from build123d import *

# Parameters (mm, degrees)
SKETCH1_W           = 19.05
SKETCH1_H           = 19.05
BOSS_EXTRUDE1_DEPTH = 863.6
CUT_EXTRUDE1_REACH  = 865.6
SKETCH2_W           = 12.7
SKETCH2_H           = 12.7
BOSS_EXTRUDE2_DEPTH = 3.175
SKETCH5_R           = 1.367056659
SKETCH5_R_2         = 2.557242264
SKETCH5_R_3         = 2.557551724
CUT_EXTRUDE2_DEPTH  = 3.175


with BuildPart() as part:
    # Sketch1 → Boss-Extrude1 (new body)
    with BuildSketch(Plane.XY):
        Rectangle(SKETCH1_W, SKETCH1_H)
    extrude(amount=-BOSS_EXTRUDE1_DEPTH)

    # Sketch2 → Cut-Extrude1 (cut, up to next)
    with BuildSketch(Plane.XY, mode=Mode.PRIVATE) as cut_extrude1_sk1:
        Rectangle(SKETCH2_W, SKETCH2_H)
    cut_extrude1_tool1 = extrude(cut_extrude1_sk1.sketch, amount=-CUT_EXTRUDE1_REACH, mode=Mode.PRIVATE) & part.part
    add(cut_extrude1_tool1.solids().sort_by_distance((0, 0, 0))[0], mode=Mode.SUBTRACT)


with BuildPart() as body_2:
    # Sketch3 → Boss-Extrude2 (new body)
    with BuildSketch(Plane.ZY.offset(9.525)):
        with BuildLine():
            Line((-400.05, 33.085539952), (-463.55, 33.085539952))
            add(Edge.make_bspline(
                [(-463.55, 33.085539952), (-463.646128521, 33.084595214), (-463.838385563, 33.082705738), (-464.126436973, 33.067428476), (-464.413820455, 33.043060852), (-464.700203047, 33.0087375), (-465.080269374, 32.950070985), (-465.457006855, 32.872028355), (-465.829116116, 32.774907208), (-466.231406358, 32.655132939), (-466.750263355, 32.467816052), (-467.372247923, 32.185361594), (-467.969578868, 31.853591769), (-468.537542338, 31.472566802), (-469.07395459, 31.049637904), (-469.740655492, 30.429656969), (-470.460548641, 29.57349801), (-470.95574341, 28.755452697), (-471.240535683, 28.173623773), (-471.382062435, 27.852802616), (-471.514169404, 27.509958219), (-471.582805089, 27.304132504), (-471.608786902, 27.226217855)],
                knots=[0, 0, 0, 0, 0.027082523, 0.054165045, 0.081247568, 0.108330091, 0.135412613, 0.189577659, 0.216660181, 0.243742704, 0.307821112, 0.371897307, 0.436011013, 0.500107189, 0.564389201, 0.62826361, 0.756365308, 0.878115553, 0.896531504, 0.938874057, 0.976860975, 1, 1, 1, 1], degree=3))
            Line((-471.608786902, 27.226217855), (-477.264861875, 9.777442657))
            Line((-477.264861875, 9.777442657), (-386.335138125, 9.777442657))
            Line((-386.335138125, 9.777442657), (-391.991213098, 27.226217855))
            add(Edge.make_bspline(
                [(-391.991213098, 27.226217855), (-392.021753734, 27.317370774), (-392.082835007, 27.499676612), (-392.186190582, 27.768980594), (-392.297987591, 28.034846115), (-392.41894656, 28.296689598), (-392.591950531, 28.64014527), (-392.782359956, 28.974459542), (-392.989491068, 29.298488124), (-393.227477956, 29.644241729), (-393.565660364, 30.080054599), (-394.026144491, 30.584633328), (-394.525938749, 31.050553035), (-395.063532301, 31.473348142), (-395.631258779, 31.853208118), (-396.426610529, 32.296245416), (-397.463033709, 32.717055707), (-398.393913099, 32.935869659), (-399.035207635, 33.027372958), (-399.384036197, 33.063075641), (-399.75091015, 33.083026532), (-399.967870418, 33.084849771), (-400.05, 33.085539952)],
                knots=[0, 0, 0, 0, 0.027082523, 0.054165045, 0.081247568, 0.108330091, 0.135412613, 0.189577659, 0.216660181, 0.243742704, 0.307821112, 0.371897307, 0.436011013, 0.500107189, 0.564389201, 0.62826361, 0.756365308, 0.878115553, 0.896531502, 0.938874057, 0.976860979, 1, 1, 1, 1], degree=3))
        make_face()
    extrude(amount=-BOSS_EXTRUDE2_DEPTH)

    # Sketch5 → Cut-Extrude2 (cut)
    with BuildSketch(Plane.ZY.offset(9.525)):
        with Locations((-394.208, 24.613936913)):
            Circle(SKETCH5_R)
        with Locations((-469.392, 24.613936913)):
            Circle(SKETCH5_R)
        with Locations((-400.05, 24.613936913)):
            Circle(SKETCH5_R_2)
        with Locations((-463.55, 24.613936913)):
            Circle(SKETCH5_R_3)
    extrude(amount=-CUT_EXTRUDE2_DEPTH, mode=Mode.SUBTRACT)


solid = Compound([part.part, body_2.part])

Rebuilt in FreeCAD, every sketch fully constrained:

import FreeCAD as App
import Part
import Sketcher
from FreeCAD import Vector
Q = App.Units.Quantity


def add_polygon(sketch, points):
    """Adds a closed chain of lines whose ends are joined by coincident constraints."""
    first, n = sketch.GeometryCount, len(points)
    for a, b in zip(points, points[1:] + points[:1]):
        sketch.addGeometry(Part.LineSegment(App.Vector(*a, 0), App.Vector(*b, 0)), False)
    for i in range(n):
        sketch.addConstraint(Sketcher.Constraint("Coincident", first + i, 2, first + (i + 1) % n, 1))

doc = App.newDocument("Part")
body = doc.addObject("PartDesign::Body", "Body")

# Sketch on XY plane
sketch1 = body.newObject("Sketcher::SketchObject", "Sketch")
sketch1.AttachmentSupport = (doc.getObject("XY_Plane"), [""])
sketch1.MapMode = "FlatFace"
add_polygon(sketch1, [(-10, 10), (-10, -10), (10, -10), (10, 10)])  # lines 0-3
sketch1.addConstraint(Sketcher.Constraint("Vertical", 0))
sketch1.addConstraint(Sketcher.Constraint("Horizontal", 1))
sketch1.addConstraint(Sketcher.Constraint("Vertical", 2))
sketch1.addConstraint(Sketcher.Constraint("Horizontal", 3))
sketch1.addConstraint(Sketcher.Constraint("Symmetric", 0, 2, 2, 2, -1, 1))
sketch1.addConstraint(Sketcher.Constraint("Equal", 3, 0))
sketch1.addConstraint(Sketcher.Constraint("DistanceX", 1, 1, 1, 2, Q("0.75 in")))
pad1 = body.newObject("PartDesign::Pad", "Pad")
pad1.Profile = sketch1
pad1.Length = Q("34 in")
pad1.Reversed = True

# Sketch on XY plane
sketch2 = body.newObject("Sketcher::SketchObject", "Sketch001")
sketch2.AttachmentSupport = (doc.getObject("XY_Plane"), [""])
sketch2.MapMode = "FlatFace"
add_polygon(sketch2, [(-6, 6), (-6, -6), (6, -6), (6, 6)])  # lines 0-3
sketch2.addConstraint(Sketcher.Constraint("Vertical", 0))
sketch2.addConstraint(Sketcher.Constraint("Horizontal", 1))
sketch2.addConstraint(Sketcher.Constraint("Vertical", 2))
sketch2.addConstraint(Sketcher.Constraint("Horizontal", 3))
sketch2.addConstraint(Sketcher.Constraint("Symmetric", 0, 2, 2, 2, -1, 1))
sketch2.addConstraint(Sketcher.Constraint("Equal", 3, 0))
sketch2.addConstraint(Sketcher.Constraint("DistanceX", 1, 1, 1, 2, Q("0.5 in")))
pocket1 = body.newObject("PartDesign::Pocket", "Pocket")
pocket1.Profile = sketch2
pocket1.Type = "UpToFirst"
body2 = doc.addObject("PartDesign::Body", "Body001")

# Sketch on YZ plane
sketch3 = body2.newObject("Sketcher::SketchObject", "Sketch002")
sketch3.AttachmentSupport = (doc.getObject("YZ_Plane001"), [""])
sketch3.MapMode = "FlatFace"
sketch3.AttachmentOffset = App.Placement(Vector(0, 0, -0.375 * 25.4), App.Rotation())
sketch3.addGeometry(Part.LineSegment(Vector(33.08554, -400.05, 0), Vector(33.08554, -463.55, 0)), False)
sketch3.addGeometry(Part.BSplineCurve([Vector(33.08554, -463.55, 0), Vector(33.084595, -463.646129, 0), Vector(33.082706, -463.838386, 0), Vector(33.067428, -464.126437, 0), Vector(33.043061, -464.41382, 0), Vector(33.008738, -464.700203, 0), Vector(32.950071, -465.080269, 0), Vector(32.872028, -465.457007, 0), Vector(32.774907, -465.829116, 0), Vector(32.655133, -466.231406, 0), Vector(32.467816, -466.750263, 0), Vector(32.185362, -467.372248, 0), Vector(31.853592, -467.969579, 0), Vector(31.472567, -468.537542, 0), Vector(31.049638, -469.073955, 0), Vector(30.429657, -469.740655, 0), Vector(29.573498, -470.460549, 0), Vector(28.755453, -470.955743, 0), Vector(28.173624, -471.240536, 0), Vector(27.852803, -471.382062, 0), Vector(27.509958, -471.514169, 0), Vector(27.304133, -471.582805, 0), Vector(27.226218, -471.608787, 0)], [4, 1, 1, 1, 1, 1, 1, 1, 1, 1, 1, 1, 1, 1, 1, 1, 1, 1, 1, 1, 4], [0, 0.027082523, 0.054165045, 0.081247568, 0.108330091, 0.135412613, 0.189577659, 0.216660181, 0.243742704, 0.307821112, 0.371897307, 0.436011013, 0.500107189, 0.564389201, 0.62826361, 0.756365308, 0.878115553, 0.896531504, 0.938874057, 0.976860975, 1], False, 3, [1, 1, 1, 1, 1, 1, 1, 1, 1, 1, 1, 1, 1, 1, 1, 1, 1, 1, 1, 1, 1, 1, 1], False), False)
sketch3.addGeometry(Part.LineSegment(Vector(27.226218, -471.608787, 0), Vector(9.777443, -477.264862, 0)), False)
sketch3.addGeometry(Part.LineSegment(Vector(9.777443, -477.264862, 0), Vector(9.777443, -386.335138, 0)), False)
sketch3.addGeometry(Part.LineSegment(Vector(9.777443, -386.335138, 0), Vector(27.226218, -391.991213, 0)), False)
sketch3.addGeometry(Part.BSplineCurve([Vector(27.226218, -391.991213, 0), Vector(27.317371, -392.021754, 0), Vector(27.499677, -392.082835, 0), Vector(27.768981, -392.186191, 0), Vector(28.034846, -392.297988, 0), Vector(28.29669, -392.418947, 0), Vector(28.640145, -392.591951, 0), Vector(28.97446, -392.78236, 0), Vector(29.298488, -392.989491, 0), Vector(29.644242, -393.227478, 0), Vector(30.080055, -393.56566, 0), Vector(30.584633, -394.026144, 0), Vector(31.050553, -394.525939, 0), Vector(31.473348, -395.063532, 0), Vector(31.853208, -395.631259, 0), Vector(32.296245, -396.426611, 0), Vector(32.717056, -397.463034, 0), Vector(32.93587, -398.393913, 0), Vector(33.027373, -399.035208, 0), Vector(33.063076, -399.384036, 0), Vector(33.083027, -399.75091, 0), Vector(33.08485, -399.96787, 0), Vector(33.08554, -400.05, 0)], [4, 1, 1, 1, 1, 1, 1, 1, 1, 1, 1, 1, 1, 1, 1, 1, 1, 1, 1, 1, 4], [0, 0.027082523, 0.054165045, 0.081247568, 0.108330091, 0.135412613, 0.189577659, 0.216660181, 0.243742704, 0.307821112, 0.371897307, 0.436011013, 0.500107189, 0.564389201, 0.62826361, 0.756365308, 0.878115553, 0.896531502, 0.938874057, 0.976860979, 1], False, 3, [1, 1, 1, 1, 1, 1, 1, 1, 1, 1, 1, 1, 1, 1, 1, 1, 1, 1, 1, 1, 1, 1, 1], False), False)
sketch3.addConstraint(Sketcher.Constraint("Block", 1))
sketch3.addConstraint(Sketcher.Constraint("Block", 5))
sketch3.addConstraint(Sketcher.Constraint("Coincident", 0, 2, 1, 1))
sketch3.addConstraint(Sketcher.Constraint("Coincident", 1, 2, 2, 1))
sketch3.addConstraint(Sketcher.Constraint("Coincident", 2, 2, 3, 1))
sketch3.addConstraint(Sketcher.Constraint("Coincident", 3, 2, 4, 1))
sketch3.addConstraint(Sketcher.Constraint("Coincident", 4, 2, 5, 1))
sketch3.addConstraint(Sketcher.Constraint("Coincident", 5, 2, 0, 1))
sketch3.addConstraint(Sketcher.Constraint("Vertical", 3))
sketch3.addConstraint(Sketcher.Constraint("Equal", 2, 4))
sketch3.addConstraint(Sketcher.Constraint("Distance", 2, 18.342599))
sketch3.addConstraint(Sketcher.Constraint("DistanceY", 3, 1, 3, 2, 90.929724))
pad2 = body2.newObject("PartDesign::Pad", "Pad001")
pad2.Profile = sketch3
pad2.Length = Q("0.125 in")

# Sketch on YZ plane
sketch4 = body2.newObject("Sketcher::SketchObject", "Sketch003")
sketch4.AttachmentSupport = (doc.getObject("YZ_Plane001"), [""])
sketch4.MapMode = "FlatFace"
sketch4.AttachmentOffset = App.Placement(Vector(0, 0, -0.375 * 25.4), App.Rotation())
sketch4.addGeometry(Part.Circle(Vector(24.6, -394.2, 0), Vector(0, 0, 1), 1.4), False)
sketch4.addGeometry(Part.Circle(Vector(24.6, -469.4, 0), Vector(0, 0, 1), 1.4), False)
sketch4.addGeometry(Part.Circle(Vector(24.6, -400.1, 0), Vector(0, 0, 1), 2.6), False)
sketch4.addGeometry(Part.Circle(Vector(24.6, -463.6, 0), Vector(0, 0, 1), 2.6), False)
sketch4.addConstraint(Sketcher.Constraint("Equal", 0, 1))
sketch4.addConstraint(Sketcher.Constraint("Vertical", 0, 3, 1, 3))
sketch4.addConstraint(Sketcher.Constraint("Vertical", 1, 3, 2, 3))
sketch4.addConstraint(Sketcher.Constraint("Vertical", 2, 3, 3, 3))
sketch4.addConstraint(Sketcher.Constraint("DistanceY", 3, 3, 2, 3, Q("2.5 in")))
sketch4.addConstraint(Sketcher.Constraint("DistanceY", 0, 3, -1, 1, Q("15.52 in")))
sketch4.addConstraint(Sketcher.Constraint("DistanceY", 1, 3, -1, 1, Q("18.48 in")))
sketch4.addConstraint(Sketcher.Constraint("DistanceY", 2, 3, -1, 1, Q("15.75 in")))
sketch4.addConstraint(Sketcher.Constraint("Diameter", 0, 2.734113))
sketch4.addConstraint(Sketcher.Constraint("Diameter", 2, 5.114485))
sketch4.addConstraint(Sketcher.Constraint("Diameter", 3, 5.115103))
sketch4.addConstraint(Sketcher.Constraint("DistanceX", -1, 1, 0, 3, 24.613937))
pocket2 = body2.newObject("PartDesign::Pocket", "Pocket001")
pocket2.Profile = sketch4
pocket2.Length = Q("0.125 in")
pocket2.Reversed = True

doc.recompute()
